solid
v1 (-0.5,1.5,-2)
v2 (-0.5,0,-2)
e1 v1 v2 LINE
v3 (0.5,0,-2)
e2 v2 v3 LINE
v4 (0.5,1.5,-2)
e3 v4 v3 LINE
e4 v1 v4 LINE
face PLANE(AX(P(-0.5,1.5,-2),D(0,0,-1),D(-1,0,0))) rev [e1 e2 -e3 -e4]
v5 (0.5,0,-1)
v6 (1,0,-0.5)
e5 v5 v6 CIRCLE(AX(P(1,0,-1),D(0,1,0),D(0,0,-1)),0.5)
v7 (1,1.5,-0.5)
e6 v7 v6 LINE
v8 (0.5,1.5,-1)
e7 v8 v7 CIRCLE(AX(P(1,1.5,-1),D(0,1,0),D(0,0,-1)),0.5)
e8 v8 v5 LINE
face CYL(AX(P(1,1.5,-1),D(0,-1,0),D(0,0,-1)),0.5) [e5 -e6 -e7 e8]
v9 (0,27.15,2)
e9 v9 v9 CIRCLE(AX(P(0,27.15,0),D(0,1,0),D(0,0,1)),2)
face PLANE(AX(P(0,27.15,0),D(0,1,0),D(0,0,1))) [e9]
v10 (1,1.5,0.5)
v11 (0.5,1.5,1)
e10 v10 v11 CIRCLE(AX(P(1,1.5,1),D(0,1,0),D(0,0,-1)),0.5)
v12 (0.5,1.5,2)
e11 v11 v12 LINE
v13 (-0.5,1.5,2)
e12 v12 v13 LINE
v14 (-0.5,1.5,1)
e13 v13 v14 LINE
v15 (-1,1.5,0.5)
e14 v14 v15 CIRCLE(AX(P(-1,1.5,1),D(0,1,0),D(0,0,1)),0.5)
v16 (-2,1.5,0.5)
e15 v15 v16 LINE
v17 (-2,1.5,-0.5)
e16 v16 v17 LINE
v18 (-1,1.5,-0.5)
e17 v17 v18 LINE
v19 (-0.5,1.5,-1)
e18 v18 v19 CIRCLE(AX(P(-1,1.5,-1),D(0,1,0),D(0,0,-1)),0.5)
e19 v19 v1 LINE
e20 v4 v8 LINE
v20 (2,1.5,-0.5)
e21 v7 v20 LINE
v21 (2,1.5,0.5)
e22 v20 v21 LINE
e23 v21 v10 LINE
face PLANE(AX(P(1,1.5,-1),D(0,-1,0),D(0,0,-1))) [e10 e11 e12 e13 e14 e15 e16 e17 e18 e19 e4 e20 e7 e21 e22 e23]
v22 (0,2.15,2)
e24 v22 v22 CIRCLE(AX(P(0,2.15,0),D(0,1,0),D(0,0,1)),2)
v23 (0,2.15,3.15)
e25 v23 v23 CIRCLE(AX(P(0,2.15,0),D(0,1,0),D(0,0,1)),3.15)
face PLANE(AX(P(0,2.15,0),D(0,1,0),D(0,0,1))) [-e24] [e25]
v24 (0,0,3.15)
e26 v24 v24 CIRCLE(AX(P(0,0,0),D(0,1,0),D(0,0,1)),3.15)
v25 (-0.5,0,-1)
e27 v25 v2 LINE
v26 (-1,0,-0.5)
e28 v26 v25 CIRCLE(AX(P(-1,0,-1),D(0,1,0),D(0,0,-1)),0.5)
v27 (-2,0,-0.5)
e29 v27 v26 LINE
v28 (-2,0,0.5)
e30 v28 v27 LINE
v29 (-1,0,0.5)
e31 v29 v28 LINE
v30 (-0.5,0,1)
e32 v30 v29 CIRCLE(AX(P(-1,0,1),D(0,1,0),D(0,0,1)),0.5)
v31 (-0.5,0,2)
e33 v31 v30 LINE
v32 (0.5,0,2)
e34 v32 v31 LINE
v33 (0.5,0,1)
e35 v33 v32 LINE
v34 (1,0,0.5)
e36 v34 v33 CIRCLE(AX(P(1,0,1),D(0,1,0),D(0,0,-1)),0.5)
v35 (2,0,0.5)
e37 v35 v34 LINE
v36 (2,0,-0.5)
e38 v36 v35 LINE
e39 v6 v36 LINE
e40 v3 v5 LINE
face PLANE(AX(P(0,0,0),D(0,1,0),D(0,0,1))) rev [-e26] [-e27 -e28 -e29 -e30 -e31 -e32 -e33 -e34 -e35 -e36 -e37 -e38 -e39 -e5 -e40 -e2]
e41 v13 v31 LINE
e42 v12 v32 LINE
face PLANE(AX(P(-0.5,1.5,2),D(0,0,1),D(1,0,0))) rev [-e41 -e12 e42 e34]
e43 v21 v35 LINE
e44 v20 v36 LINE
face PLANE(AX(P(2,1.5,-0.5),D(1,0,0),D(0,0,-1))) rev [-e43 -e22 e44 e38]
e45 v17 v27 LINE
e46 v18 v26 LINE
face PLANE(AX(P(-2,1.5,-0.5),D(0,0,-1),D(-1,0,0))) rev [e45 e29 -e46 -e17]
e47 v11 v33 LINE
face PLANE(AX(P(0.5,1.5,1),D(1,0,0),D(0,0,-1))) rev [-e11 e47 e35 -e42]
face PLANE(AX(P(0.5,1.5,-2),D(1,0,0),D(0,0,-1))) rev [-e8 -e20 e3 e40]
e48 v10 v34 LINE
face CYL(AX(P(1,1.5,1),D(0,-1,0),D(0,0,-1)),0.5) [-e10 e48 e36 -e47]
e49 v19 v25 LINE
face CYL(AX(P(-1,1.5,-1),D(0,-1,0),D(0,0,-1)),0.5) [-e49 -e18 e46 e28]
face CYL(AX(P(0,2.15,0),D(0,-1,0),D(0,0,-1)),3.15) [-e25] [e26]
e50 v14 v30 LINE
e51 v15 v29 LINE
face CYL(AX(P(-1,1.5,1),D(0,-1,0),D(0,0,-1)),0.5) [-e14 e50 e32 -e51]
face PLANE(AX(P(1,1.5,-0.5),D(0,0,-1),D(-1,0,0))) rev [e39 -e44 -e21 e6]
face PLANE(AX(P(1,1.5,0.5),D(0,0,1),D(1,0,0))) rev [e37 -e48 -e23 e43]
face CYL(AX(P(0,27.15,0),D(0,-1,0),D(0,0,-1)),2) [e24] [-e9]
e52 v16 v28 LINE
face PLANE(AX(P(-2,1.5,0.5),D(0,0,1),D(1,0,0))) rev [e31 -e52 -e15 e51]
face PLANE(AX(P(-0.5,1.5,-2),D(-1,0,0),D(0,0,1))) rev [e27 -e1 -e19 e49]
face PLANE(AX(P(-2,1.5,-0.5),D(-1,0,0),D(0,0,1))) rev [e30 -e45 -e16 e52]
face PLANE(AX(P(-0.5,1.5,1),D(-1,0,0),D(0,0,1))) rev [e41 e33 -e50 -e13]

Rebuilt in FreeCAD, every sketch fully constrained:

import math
import FreeCAD as App
import Part
import Sketcher

doc = App.newDocument("Part")
body = doc.addObject("PartDesign::Body", "Body")

# Sketch on XZ plane
sketch1 = body.newObject("Sketcher::SketchObject", "Sketch")
sketch1.AttachmentSupport = (doc.getObject("XZ_Plane"), [""])
sketch1.MapMode = "FlatFace"
sketch1.addGeometry(Part.Circle(App.Vector(0, 0, 0), App.Vector(0, 0, 1), 3.1), False)
sketch1.addConstraint([
    Sketcher.Constraint("Coincident", 0, 3, -1, 1),
    Sketcher.Constraint("Diameter", 0, 6.3),
])
pad1 = body.newObject("PartDesign::Pad", "Pad")
pad1.Profile = sketch1
pad1.Length = 2.15
pad1.Reversed = True

# Sketch on XZ plane
sketch2 = body.newObject("Sketcher::SketchObject", "Sketch001")
sketch2.AttachmentSupport = (doc.getObject("XZ_Plane"), [""])
sketch2.MapMode = "FlatFace"
sketch2.AttachmentOffset = App.Placement(App.Vector(0, 0, -2.15), App.Rotation())
sketch2.addGeometry(Part.Circle(App.Vector(0, 0, 0), App.Vector(0, 0, 1), 2), False)
sketch2.addConstraint([
    Sketcher.Constraint("Coincident", 0, 3, -1, 1),
    Sketcher.Constraint("Diameter", 0, 4.0),
])
pad2 = body.newObject("PartDesign::Pad", "Pad001")
pad2.Profile = sketch2
pad2.Length = 25
pad2.Reversed = True

# Sketch on XZ plane
sketch3 = body.newObject("Sketcher::SketchObject", "Sketch002")
sketch3.AttachmentSupport = (doc.getObject("XZ_Plane"), [""])
sketch3.MapMode = "FlatFace"
sketch3.addGeometry([
    Part.LineSegment(App.Vector(-0.5, 2, 0), App.Vector(-0.5, 1, 0)),  # 0
    Part.ArcOfCircle(Part.Circle(App.Vector(-1, 1, 0), App.Vector(0, 0, 1), 0.5), math.radians(-90), math.radians(0)),  # 1
    Part.LineSegment(App.Vector(-1, 0.5, 0), App.Vector(-2, 0.5, 0)),  # 2
    Part.LineSegment(App.Vector(-2, 0.5, 0), App.Vector(-2, -0.5, 0)),  # 3
    Part.LineSegment(App.Vector(-2, -0.5, 0), App.Vector(-1, -0.5, 0)),  # 4
    Part.ArcOfCircle(Part.Circle(App.Vector(-1, -1, 0), App.Vector(0, 0, 1), 0.5), math.radians(0), math.radians(90)),  # 5
    Part.LineSegment(App.Vector(-0.5, -1, 0), App.Vector(-0.5, -2, 0)),  # 6
    Part.LineSegment(App.Vector(-0.5, -2, 0), App.Vector(0.5, -2, 0)),  # 7
    Part.LineSegment(App.Vector(0.5, -2, 0), App.Vector(0.5, -1, 0)),  # 8
    Part.ArcOfCircle(Part.Circle(App.Vector(1, -1, 0), App.Vector(0, 0, 1), 0.5), math.radians(90), math.radians(180)),  # 9
    Part.LineSegment(App.Vector(1, -0.5, 0), App.Vector(2, -0.5, 0)),  # 10
    Part.LineSegment(App.Vector(2, -0.5, 0), App.Vector(2, 0.5, 0)),  # 11
    Part.LineSegment(App.Vector(2, 0.5, 0), App.Vector(1, 0.5, 0)),  # 12
    Part.ArcOfCircle(Part.Circle(App.Vector(1, 1, 0), App.Vector(0, 0, 1), 0.5), math.radians(180), math.radians(270)),  # 13
    Part.LineSegment(App.Vector(0.5, 1, 0), App.Vector(0.5, 2, 0)),  # 14
    Part.LineSegment(App.Vector(0.5, 2, 0), App.Vector(-0.5, 2, 0)),  # 15
], False)
sketch3.addConstraint([
    Sketcher.Constraint("Tangent", 0, 2, 1, 2),
    Sketcher.Constraint("Tangent", 1, 1, 2, 1),
    Sketcher.Constraint("Coincident", 2, 2, 3, 1),
    Sketcher.Constraint("Coincident", 3, 2, 4, 1),
    Sketcher.Constraint("Tangent", 4, 2, 5, 2),
    Sketcher.Constraint("Tangent", 5, 1, 6, 1),
    Sketcher.Constraint("Coincident", 6, 2, 7, 1),
    Sketcher.Constraint("Coincident", 7, 2, 8, 1),
    Sketcher.Constraint("Tangent", 8, 2, 9, 2),
    Sketcher.Constraint("Tangent", 9, 1, 10, 1),
    Sketcher.Constraint("Coincident", 10, 2, 11, 1),
    Sketcher.Constraint("Coincident", 11, 2, 12, 1),
    Sketcher.Constraint("Tangent", 12, 2, 13, 2),
    Sketcher.Constraint("Tangent", 13, 1, 14, 1),
    Sketcher.Constraint("Coincident", 14, 2, 15, 1),
    Sketcher.Constraint("Coincident", 15, 2, 0, 1),
    Sketcher.Constraint("Vertical", 0),
    Sketcher.Constraint("Horizontal", 2),
    Sketcher.Constraint("Vertical", 3),
    Sketcher.Constraint("Horizontal", 4),
    Sketcher.Constraint("Vertical", 6),
    Sketcher.Constraint("Horizontal", 7),
    Sketcher.Constraint("Vertical", 8),
    Sketcher.Constraint("Horizontal", 10),
    Sketcher.Constraint("Vertical", 11),
    Sketcher.Constraint("Horizontal", 12),
    Sketcher.Constraint("Vertical", 14),
    Sketcher.Constraint("Horizontal", 15),
    Sketcher.Constraint("Equal", 1, 5),
    Sketcher.Constraint("Equal", 5, 9),
    Sketcher.Constraint("Equal", 9, 13),
    Sketcher.Constraint("Symmetric", 1, 3, 9, 3, -1, 1),
    Sketcher.Constraint("Symmetric", 5, 3, 13, 3, -1, 1),
    Sketcher.Constraint("Symmetric", 5, 3, 9, 3, -2),
    Sketcher.Constraint("Equal", 4, 7),
    Sketcher.Constraint("Equal", 7, 10),
    Sketcher.Constraint("Equal", 15, 0),
    Sketcher.Constraint("Equal", 0, 3),
    Sketcher.Constraint("Equal", 3, 6),
    Sketcher.Constraint("Radius", 1, 0.5),
    Sketcher.Constraint("DistanceX", 2, 2, 2, 1, 1.0),
])
pocket1 = body.newObject("PartDesign::Pocket", "Pocket")
pocket1.Profile = sketch3
pocket1.Length = 1.5

doc.recompute()
